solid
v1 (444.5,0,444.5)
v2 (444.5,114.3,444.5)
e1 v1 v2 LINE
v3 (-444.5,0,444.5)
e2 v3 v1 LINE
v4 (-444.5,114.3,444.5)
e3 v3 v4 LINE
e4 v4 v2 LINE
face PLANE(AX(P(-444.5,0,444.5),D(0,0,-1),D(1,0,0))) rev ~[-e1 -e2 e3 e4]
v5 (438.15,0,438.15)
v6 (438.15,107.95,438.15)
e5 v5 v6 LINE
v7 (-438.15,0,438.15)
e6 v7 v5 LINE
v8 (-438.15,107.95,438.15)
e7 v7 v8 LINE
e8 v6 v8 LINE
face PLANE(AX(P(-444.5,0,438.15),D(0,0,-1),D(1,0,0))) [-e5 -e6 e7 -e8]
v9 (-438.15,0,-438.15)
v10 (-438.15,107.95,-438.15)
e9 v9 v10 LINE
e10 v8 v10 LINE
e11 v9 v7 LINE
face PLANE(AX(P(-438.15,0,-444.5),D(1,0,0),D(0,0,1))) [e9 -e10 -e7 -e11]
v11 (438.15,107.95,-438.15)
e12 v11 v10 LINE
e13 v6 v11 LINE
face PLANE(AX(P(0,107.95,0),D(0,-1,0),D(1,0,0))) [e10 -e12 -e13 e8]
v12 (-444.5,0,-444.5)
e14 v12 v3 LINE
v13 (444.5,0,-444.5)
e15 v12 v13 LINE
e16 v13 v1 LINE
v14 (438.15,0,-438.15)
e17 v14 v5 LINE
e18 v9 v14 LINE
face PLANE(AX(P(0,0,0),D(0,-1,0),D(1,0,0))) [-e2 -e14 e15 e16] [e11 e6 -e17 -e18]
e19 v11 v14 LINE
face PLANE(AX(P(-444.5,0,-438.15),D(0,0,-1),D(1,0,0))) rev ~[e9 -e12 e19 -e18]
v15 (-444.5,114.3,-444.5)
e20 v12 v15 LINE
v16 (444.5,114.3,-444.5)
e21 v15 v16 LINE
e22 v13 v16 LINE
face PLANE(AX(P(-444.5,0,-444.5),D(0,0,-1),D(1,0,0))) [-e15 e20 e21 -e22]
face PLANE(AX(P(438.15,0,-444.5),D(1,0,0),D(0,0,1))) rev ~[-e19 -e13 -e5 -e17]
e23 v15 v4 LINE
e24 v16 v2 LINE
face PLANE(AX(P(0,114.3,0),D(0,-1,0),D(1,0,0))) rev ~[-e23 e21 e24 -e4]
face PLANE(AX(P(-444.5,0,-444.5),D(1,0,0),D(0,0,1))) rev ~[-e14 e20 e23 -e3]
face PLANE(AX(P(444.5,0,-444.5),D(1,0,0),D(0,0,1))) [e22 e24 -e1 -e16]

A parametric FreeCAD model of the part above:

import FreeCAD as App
import Part
import Sketcher
Q = App.Units.Quantity


def faces_at(feature, points):
    """Names of the faces that lie closest to the given points."""
    faces = feature.Shape.Faces
    near = lambda p: min(range(len(faces)), key=lambda i: faces[i].distToShape(Part.Vertex(*p))[0])
    return sorted({f"Face{near(p) + 1}" for p in points})

doc = App.newDocument("Part")
body = doc.addObject("PartDesign::Body", "Body")

sketch1 = body.newObject("Sketcher::SketchObject", "Sketch")
sketch1.AttachmentSupport = (doc.getObject("XZ_Plane"), [""])
sketch1.MapMode = "FlatFace"
sketch1.addGeometry([
    Part.LineSegment(App.Vector(-444, 444, 0), App.Vector(-444, -444, 0)),
    Part.LineSegment(App.Vector(-444, -444, 0), App.Vector(444, -444, 0)),
    Part.LineSegment(App.Vector(444, -444, 0), App.Vector(444, 444, 0)),
    Part.LineSegment(App.Vector(444, 444, 0), App.Vector(-444, 444, 0)),
], False)
sketch1.addConstraint([
    Sketcher.Constraint("Coincident", 0, 2, 1, 1),
    Sketcher.Constraint("Coincident", 1, 2, 2, 1),
    Sketcher.Constraint("Coincident", 2, 2, 3, 1),
    Sketcher.Constraint("Coincident", 3, 2, 0, 1),
    Sketcher.Constraint("Vertical", 0),
    Sketcher.Constraint("Horizontal", 1),
    Sketcher.Constraint("Vertical", 2),
    Sketcher.Constraint("Horizontal", 3),
    Sketcher.Constraint("Symmetric", 0, 2, 2, 2, -1, 1),
    Sketcher.Constraint("Equal", 3, 0),
    Sketcher.Constraint("DistanceX", 1, 1, 1, 2, Q("35 in")),
])
pad1 = body.newObject("PartDesign::Pad", "Pad")
pad1.Profile = sketch1
pad1.Length = Q("4.5 in")
pad1.Reversed = True
doc.recompute()

thickness = body.newObject("PartDesign::Thickness", "Thickness")
thickness.Base = (pad1, faces_at(pad1, [(0, 0, 0)]))
thickness.Value = Q("0.25 in")
thickness.Reversed = True
thickness.Join = "Arc"

doc.recompute()
